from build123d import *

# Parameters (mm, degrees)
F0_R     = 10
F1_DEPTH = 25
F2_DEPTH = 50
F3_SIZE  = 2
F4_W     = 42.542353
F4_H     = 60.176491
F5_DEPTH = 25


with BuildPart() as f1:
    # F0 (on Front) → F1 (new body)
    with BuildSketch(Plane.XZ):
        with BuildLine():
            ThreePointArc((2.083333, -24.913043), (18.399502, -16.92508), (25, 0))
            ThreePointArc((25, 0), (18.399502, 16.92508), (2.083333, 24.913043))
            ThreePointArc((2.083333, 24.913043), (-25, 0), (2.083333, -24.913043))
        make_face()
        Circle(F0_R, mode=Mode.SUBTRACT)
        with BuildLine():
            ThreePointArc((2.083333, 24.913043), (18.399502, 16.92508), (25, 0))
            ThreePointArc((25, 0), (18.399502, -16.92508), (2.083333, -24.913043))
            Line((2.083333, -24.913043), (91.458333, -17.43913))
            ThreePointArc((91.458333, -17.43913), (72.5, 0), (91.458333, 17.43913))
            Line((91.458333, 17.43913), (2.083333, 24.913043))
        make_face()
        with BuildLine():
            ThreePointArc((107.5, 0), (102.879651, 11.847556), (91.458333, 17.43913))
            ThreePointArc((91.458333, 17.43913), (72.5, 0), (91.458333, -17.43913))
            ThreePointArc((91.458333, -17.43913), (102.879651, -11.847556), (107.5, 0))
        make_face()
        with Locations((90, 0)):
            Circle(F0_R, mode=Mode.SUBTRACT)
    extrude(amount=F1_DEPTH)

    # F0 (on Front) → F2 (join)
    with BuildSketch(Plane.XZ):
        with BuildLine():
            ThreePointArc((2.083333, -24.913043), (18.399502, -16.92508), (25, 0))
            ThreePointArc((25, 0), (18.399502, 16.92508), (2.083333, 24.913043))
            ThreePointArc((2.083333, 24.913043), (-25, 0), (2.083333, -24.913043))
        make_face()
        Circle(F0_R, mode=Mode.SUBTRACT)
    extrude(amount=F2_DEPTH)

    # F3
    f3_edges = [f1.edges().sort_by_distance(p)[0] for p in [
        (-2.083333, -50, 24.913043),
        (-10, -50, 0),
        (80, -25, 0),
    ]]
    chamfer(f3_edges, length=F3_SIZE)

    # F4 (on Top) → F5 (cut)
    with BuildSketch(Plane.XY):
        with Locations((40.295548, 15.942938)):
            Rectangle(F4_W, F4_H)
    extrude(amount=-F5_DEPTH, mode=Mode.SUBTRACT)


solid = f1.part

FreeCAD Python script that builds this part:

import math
import FreeCAD as App
import Part
import Sketcher

V = App.Vector


def edges_at(feature, points):
    """Names of the edges that pass closest to the given points."""
    edges = feature.Shape.Edges
    near = lambda p: min(range(len(edges)), key=lambda i: edges[i].distToShape(Part.Vertex(*p))[0])
    return sorted({f"Edge{near(p) + 1}" for p in points})


def add_polygon(sketch, points):
    """Adds a closed chain of lines whose ends are joined by coincident constraints."""
    first, n = sketch.GeometryCount, len(points)
    for a, b in zip(points, points[1:] + points[:1]):
        sketch.addGeometry(Part.LineSegment(App.Vector(*a, 0), App.Vector(*b, 0)), False)
    for i in range(n):
        sketch.addConstraint(Sketcher.Constraint("Coincident", first + i, 2, first + (i + 1) % n, 1))

doc = App.newDocument("Part")
body = doc.addObject("PartDesign::Body", "Body")

# Sketch on XZ plane
sketch1 = body.newObject("Sketcher::SketchObject", "Sketch")
sketch1.AttachmentSupport = (doc.getObject("XZ_Plane"), [""])
sketch1.MapMode = "FlatFace"
sketch1.addGeometry(Part.ArcOfCircle(Part.Circle(V(0, 0, 0), V(0, 0, 1), 25), math.radians(85), math.radians(275)), False)
sketch1.addGeometry(Part.LineSegment(V(2, -25, 0), V(91, -17, 0)), False)
sketch1.addGeometry(Part.ArcOfCircle(Part.Circle(V(90, 0, 0), V(0, 0, 1), 18), math.radians(-85), math.radians(0)), False)
sketch1.addGeometry(Part.ArcOfCircle(Part.Circle(V(90, 0, 0), V(0, 0, 1), 18), math.radians(0), math.radians(85)), False)
sketch1.addGeometry(Part.LineSegment(V(91, 17, 0), V(2, 25, 0)), False)
sketch1.addGeometry(Part.Circle(V(0, 0, 0), V(0, 0, 1), 10), False)
sketch1.addGeometry(Part.Circle(V(90, 0, 0), V(0, 0, 1), 10), False)
sketch1.addConstraint(Sketcher.Constraint("Tangent", 0, 2, 1, 1))
sketch1.addConstraint(Sketcher.Constraint("Tangent", 1, 2, 2, 1))
sketch1.addConstraint(Sketcher.Constraint("Tangent", 2, 2, 3, 1))
sketch1.addConstraint(Sketcher.Constraint("Tangent", 3, 2, 4, 1))
sketch1.addConstraint(Sketcher.Constraint("Tangent", 4, 2, 0, 1))
sketch1.addConstraint(Sketcher.Constraint("Coincident", 0, 3, -1, 1))
sketch1.addConstraint(Sketcher.Constraint("Coincident", 5, 3, -1, 1))
sketch1.addConstraint(Sketcher.Constraint("Coincident", 6, 3, 2, 3))
sketch1.addConstraint(Sketcher.Constraint("Equal", 2, 3))
sketch1.addConstraint(Sketcher.Constraint("Equal", 5, 6))
sketch1.addConstraint(Sketcher.Constraint("PointOnObject", 2, 3, -1))
sketch1.addConstraint(Sketcher.Constraint("PointOnObject", 2, 2, -1))
sketch1.addConstraint(Sketcher.Constraint("Diameter", 5, 20.0))
sketch1.addConstraint(Sketcher.Constraint("Radius", 0, 25.0))
sketch1.addConstraint(Sketcher.Constraint("Radius", 2, 17.5))
sketch1.addConstraint(Sketcher.Constraint("DistanceX", -1, 1, 2, 3, 90.0))
pad1 = body.newObject("PartDesign::Pad", "Pad")
pad1.Profile = sketch1
pad1.Length = 25

# Sketch on XZ plane
sketch2 = body.newObject("Sketcher::SketchObject", "Sketch001")
sketch2.AttachmentSupport = (doc.getObject("XZ_Plane"), [""])
sketch2.MapMode = "FlatFace"
sketch2.addGeometry(Part.ArcOfCircle(Part.Circle(V(0, 0, 0), V(0, 0, 1), 25), math.radians(-85), math.radians(0)), False)
sketch2.addGeometry(Part.ArcOfCircle(Part.Circle(V(0, 0, 0), V(0, 0, 1), 25), math.radians(0), math.radians(85)), False)
sketch2.addGeometry(Part.ArcOfCircle(Part.Circle(V(0, 0, 0), V(0, 0, 1), 25), math.radians(85), math.radians(275)), False)
sketch2.addGeometry(Part.Circle(V(0, 0, 0), V(0, 0, 1), 10), False)
sketch2.addConstraint(Sketcher.Constraint("Tangent", 0, 2, 1, 1))
sketch2.addConstraint(Sketcher.Constraint("Tangent", 1, 2, 2, 1))
sketch2.addConstraint(Sketcher.Constraint("Tangent", 2, 2, 0, 1))
sketch2.addConstraint(Sketcher.Constraint("Coincident", 0, 3, -1, 1))
sketch2.addConstraint(Sketcher.Constraint("Coincident", 3, 3, -1, 1))
sketch2.addConstraint(Sketcher.Constraint("PointOnObject", 0, 2, -1))
sketch2.addConstraint(Sketcher.Constraint("Vertical", 1, 2, 2, 2))
sketch2.addConstraint(Sketcher.Constraint("Diameter", 3, 20.0))
sketch2.addConstraint(Sketcher.Constraint("Radius", 0, 24.999999))
sketch2.addConstraint(Sketcher.Constraint("DistanceX", -1, 1, 1, 2, 2.083333))
pad2 = body.newObject("PartDesign::Pad", "Pad001")
pad2.Profile = sketch2
pad2.Length = 50
doc.recompute()

chamfer = body.newObject("PartDesign::Chamfer", "Chamfer")
chamfer.Base = (pad2, edges_at(pad2, [(-25, -50, 0), (-10, -50, 0), (80, -25, 0)]))
chamfer.Size = 2

# Sketch on XY plane
sketch3 = body.newObject("Sketcher::SketchObject", "Sketch002")
sketch3.AttachmentSupport = (doc.getObject("XY_Plane"), [""])
sketch3.MapMode = "FlatFace"
add_polygon(sketch3, [(19, 46), (19, -14), (62, -14), (62, 46)])  # lines 0-3
sketch3.addConstraint(Sketcher.Constraint("Vertical", 0))
sketch3.addConstraint(Sketcher.Constraint("Horizontal", 1))
sketch3.addConstraint(Sketcher.Constraint("Vertical", 2))
sketch3.addConstraint(Sketcher.Constraint("Horizontal", 3))
sketch3.addConstraint(Sketcher.Constraint("DistanceY", 0, 2, 0, 1, 60.176491))
sketch3.addConstraint(Sketcher.Constraint("DistanceX", 1, 1, 1, 2, 42.542353))
sketch3.addConstraint(Sketcher.Constraint("DistanceX", -1, 1, 0, 2, 19.024372))
sketch3.addConstraint(Sketcher.Constraint("DistanceY", 0, 2, -1, 1, 14.145307))
pocket1 = body.newObject("PartDesign::Pocket", "Pocket")
pocket1.Profile = sketch3
pocket1.Length = 25

doc.recompute()
